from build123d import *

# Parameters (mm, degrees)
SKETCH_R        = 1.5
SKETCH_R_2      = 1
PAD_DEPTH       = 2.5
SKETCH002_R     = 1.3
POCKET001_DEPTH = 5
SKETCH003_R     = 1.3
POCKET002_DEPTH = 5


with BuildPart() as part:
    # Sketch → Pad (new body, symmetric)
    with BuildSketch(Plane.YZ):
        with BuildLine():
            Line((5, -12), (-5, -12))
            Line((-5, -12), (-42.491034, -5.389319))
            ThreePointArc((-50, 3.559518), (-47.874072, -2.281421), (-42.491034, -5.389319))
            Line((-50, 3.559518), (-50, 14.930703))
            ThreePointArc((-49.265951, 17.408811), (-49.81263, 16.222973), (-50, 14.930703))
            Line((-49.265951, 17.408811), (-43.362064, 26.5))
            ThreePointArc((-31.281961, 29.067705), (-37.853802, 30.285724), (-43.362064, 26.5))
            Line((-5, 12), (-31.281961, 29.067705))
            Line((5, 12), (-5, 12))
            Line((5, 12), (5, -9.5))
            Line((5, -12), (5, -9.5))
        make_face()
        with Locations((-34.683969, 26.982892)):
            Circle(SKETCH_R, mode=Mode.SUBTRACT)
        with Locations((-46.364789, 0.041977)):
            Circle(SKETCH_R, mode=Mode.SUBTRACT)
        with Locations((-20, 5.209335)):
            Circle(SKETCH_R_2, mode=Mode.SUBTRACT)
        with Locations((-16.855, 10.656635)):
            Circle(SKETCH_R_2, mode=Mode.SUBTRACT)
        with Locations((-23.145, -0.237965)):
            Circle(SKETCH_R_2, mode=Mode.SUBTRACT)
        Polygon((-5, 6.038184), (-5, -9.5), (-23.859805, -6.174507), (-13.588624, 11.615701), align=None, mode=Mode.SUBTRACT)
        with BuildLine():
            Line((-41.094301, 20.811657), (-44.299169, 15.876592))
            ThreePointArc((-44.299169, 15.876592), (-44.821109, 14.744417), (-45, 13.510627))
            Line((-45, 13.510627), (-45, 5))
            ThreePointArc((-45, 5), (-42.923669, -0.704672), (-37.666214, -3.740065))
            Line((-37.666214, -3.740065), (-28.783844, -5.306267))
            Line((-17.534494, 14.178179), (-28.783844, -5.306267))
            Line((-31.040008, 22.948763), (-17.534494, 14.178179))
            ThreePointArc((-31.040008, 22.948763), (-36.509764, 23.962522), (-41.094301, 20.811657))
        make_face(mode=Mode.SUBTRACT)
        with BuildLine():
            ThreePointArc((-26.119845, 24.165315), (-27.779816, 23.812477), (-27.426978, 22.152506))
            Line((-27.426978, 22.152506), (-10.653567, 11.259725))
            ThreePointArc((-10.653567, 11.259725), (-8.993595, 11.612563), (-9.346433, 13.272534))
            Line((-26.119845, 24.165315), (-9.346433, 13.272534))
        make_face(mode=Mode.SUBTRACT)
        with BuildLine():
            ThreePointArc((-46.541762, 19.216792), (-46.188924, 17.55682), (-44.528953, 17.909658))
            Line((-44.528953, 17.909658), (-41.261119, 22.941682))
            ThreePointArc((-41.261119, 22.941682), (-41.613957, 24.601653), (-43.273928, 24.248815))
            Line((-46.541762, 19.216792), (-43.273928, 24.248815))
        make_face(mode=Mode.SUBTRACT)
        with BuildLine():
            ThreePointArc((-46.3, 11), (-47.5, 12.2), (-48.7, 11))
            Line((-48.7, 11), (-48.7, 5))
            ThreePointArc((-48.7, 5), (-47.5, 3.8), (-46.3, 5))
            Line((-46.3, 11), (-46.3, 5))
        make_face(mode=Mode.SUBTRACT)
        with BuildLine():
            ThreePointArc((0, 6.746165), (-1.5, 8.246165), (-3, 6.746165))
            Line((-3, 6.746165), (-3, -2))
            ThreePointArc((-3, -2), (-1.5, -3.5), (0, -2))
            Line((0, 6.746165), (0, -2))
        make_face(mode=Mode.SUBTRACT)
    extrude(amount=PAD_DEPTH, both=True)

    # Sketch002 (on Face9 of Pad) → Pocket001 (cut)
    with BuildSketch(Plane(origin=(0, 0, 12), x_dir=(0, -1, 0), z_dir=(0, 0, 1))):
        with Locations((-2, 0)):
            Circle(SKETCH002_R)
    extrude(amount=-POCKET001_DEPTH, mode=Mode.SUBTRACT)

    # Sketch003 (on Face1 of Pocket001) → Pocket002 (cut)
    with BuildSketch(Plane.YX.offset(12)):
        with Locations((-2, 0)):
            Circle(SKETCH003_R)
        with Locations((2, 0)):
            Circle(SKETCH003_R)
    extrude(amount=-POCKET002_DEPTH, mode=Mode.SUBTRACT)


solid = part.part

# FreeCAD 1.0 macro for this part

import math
import FreeCAD as App
import Part
import Sketcher
from FreeCAD import Vector
Q = App.Units.Quantity


def add_polygon(sketch, points):
    """Adds a closed chain of lines whose ends are joined by coincident constraints."""
    first, n = sketch.GeometryCount, len(points)
    for a, b in zip(points, points[1:] + points[:1]):
        sketch.addGeometry(Part.LineSegment(App.Vector(*a, 0), App.Vector(*b, 0)), False)
    for i in range(n):
        sketch.addConstraint(Sketcher.Constraint("Coincident", first + i, 2, first + (i + 1) % n, 1))

doc = App.newDocument("Part")
body = doc.addObject("PartDesign::Body", "Body")

sketch1 = body.newObject("Sketcher::SketchObject", "Sketch")
sketch1.AttachmentSupport = (doc.getObject("YZ_Plane"), [""])
sketch1.MapMode = "FlatFace"
sketch1.addGeometry(Part.LineSegment(Vector(-5, -12, 0), Vector(5, -12, 0)), False)
sketch1.addGeometry(Part.LineSegment(Vector(5, -12, 0), Vector(5, 12, 0)), False)
sketch1.addGeometry(Part.LineSegment(Vector(5, 12, 0), Vector(-5, 12, 0)), False)
sketch1.addGeometry(Part.LineSegment(Vector(-5, 12, 0), Vector(-31.281961, 29.067705, 0)), False)
sketch1.addGeometry(Part.ArcOfCircle(Part.Circle(Vector(-36.03816, 21.743802, 0), Vector(0, 0, 1), 8.732754), math.radians(56.999994), math.radians(147.000004)), False)
sketch1.addGeometry(Part.LineSegment(Vector(-43.362064, 26.5, 0), Vector(-49.265951, 17.408811, 0)), False)
sketch1.addGeometry(Part.ArcOfCircle(Part.Circle(Vector(-45.450004, 14.930704, 0), Vector(0, 0, 1), 4.549996), math.radians(146.999983), math.radians(180.000019)), False)
sketch1.addGeometry(Part.LineSegment(Vector(-50, 14.930703, 0), Vector(-50, 3.559518, 0)), False)
sketch1.addGeometry(Part.ArcOfCircle(Part.Circle(Vector(-40.913113, 3.559518, 0), Vector(0, 0, 1), 9.086887), math.radians(179.999998), math.radians(260.000004)), False)
sketch1.addGeometry(Part.LineSegment(Vector(-42.491034, -5.389319, 0), Vector(-5, -12, 0)), False)
sketch1.addGeometry(Part.Circle(Vector(-23.145, -0.237965, 0), Vector(0, 0, 1), 1), False)
sketch1.addGeometry(Part.LineSegment(Vector(0, 6.746165, 0), Vector(0, -2, 0)), False)
sketch1.addGeometry(Part.ArcOfCircle(Part.Circle(Vector(-1.5, -2, 0), Vector(0, 0, 1), 1.5), math.radians(180), math.radians(360)), False)
sketch1.addGeometry(Part.LineSegment(Vector(-3, -2, 0), Vector(-3, 6.746165, 0)), False)
sketch1.addGeometry(Part.ArcOfCircle(Part.Circle(Vector(-1.5, 6.746165, 0), Vector(0, 0, 1), 1.5), math.radians(0), math.radians(180)), False)
add_polygon(sketch1, [(-5, 6.038184), (-5, -9.5), (-23.859805, -6.174507), (-13.588624, 11.615701)])
sketch1.addGeometry(Part.Circle(Vector(-20, 5.209335, 0), Vector(0, 0, 1), 1), False)
sketch1.addGeometry(Part.ArcOfCircle(Part.Circle(Vector(-34.998601, 16.853063, 0), Vector(0, 0, 1), 7.268289), math.radians(57.000004), math.radians(146.999997)), False)
sketch1.addGeometry(Part.LineSegment(Vector(-31.040008, 22.948763, 0), Vector(-17.534494, 14.178179, 0)), False)
sketch1.addGeometry(Part.LineSegment(Vector(-17.534494, 14.178179, 0), Vector(-28.783844, -5.306267, 0)), False)
sketch1.addGeometry(Part.LineSegment(Vector(-28.783844, -5.306267, 0), Vector(-37.666214, -3.740065, 0)), False)
sketch1.addGeometry(Part.ArcOfCircle(Part.Circle(Vector(-36.125105, 5.000001, 0), Vector(0, 0, 1), 8.874895), math.radians(-179.999996), math.radians(-99.999999)), False)
sketch1.addGeometry(Part.LineSegment(Vector(-45, 5, 0), Vector(-45, 13.510627, 0)), False)
sketch1.addGeometry(Part.ArcOfCircle(Part.Circle(Vector(-40.655905, 13.510627, 0), Vector(0, 0, 1), 4.344095), math.radians(146.999986), math.radians(180.000004)), False)
sketch1.addGeometry(Part.LineSegment(Vector(-44.299169, 15.876592, 0), Vector(-41.094301, 20.811657, 0)), False)
sketch1.addGeometry(Part.Circle(Vector(-46.364789, 0.041977, 0), Vector(0, 0, 1), 1.5), False)
sketch1.addGeometry(Part.LineSegment(Vector(-46.3, 11, 0), Vector(-46.3, 5, 0)), False)
sketch1.addGeometry(Part.ArcOfCircle(Part.Circle(Vector(-47.5, 5, 0), Vector(0, 0, 1), 1.2), math.radians(180), math.radians(360)), False)
sketch1.addGeometry(Part.LineSegment(Vector(-48.7, 5, 0), Vector(-48.7, 11, 0)), False)
sketch1.addGeometry(Part.ArcOfCircle(Part.Circle(Vector(-47.5, 11, 0), Vector(0, 0, 1), 1.2), math.radians(0), math.radians(180)), False)
sketch1.addGeometry(Part.Circle(Vector(-16.855, 10.656635, 0), Vector(0, 0, 1), 1), False)
sketch1.addGeometry(Part.LineSegment(Vector(-26.119845, 24.165315, 0), Vector(-9.346433, 13.272534, 0)), False)
sketch1.addGeometry(Part.ArcOfCircle(Part.Circle(Vector(-10, 12.266129, 0), Vector(0, 0, 1), 1.2), math.radians(-123.000018), math.radians(56.999996)), False)
sketch1.addGeometry(Part.LineSegment(Vector(-10.653567, 11.259725, 0), Vector(-27.426978, 22.152506, 0)), False)
sketch1.addGeometry(Part.ArcOfCircle(Part.Circle(Vector(-26.773412, 23.158911, 0), Vector(0, 0, 1), 1.2), math.radians(57.000009), math.radians(237.000009)), False)
sketch1.addGeometry(Part.Circle(Vector(-34.683969, 26.982892, 0), Vector(0, 0, 1), 1.5), False)
sketch1.addGeometry(Part.LineSegment(Vector(-46.541762, 19.216792, 0), Vector(-43.273928, 24.248815, 0)), False)
sketch1.addGeometry(Part.ArcOfCircle(Part.Circle(Vector(-42.267524, 23.595249, 0), Vector(0, 0, 1), 1.2), math.radians(-32.999991), math.radians(147.000009)), False)
sketch1.addGeometry(Part.LineSegment(Vector(-41.261119, 22.941682, 0), Vector(-44.528953, 17.909658, 0)), False)
sketch1.addGeometry(Part.ArcOfCircle(Part.Circle(Vector(-45.535358, 18.563225, 0), Vector(0, 0, 1), 1.2), math.radians(146.999982), math.radians(326.999996)), False)
sketch1.addConstraint(Sketcher.Constraint("Coincident", 0, 2, 1, 1))
sketch1.addConstraint(Sketcher.Constraint("Coincident", 1, 2, 2, 1))
sketch1.addConstraint(Sketcher.Constraint("Coincident", 2, 2, 3, 1))
sketch1.addConstraint(Sketcher.Constraint("Tangent", 3, 2, 4, 1))
sketch1.addConstraint(Sketcher.Constraint("Tangent", 4, 2, 5, 1))
sketch1.addConstraint(Sketcher.Constraint("Tangent", 5, 2, 6, 1))
sketch1.addConstraint(Sketcher.Constraint("Tangent", 6, 2, 7, 1))
sketch1.addConstraint(Sketcher.Constraint("Tangent", 7, 2, 8, 1))
sketch1.addConstraint(Sketcher.Constraint("Tangent", 8, 2, 9, 1))
sketch1.addConstraint(Sketcher.Constraint("Coincident", 9, 2, 0, 1))
sketch1.addConstraint(Sketcher.Constraint("Tangent", 11, 2, 12, 2))
sketch1.addConstraint(Sketcher.Constraint("Tangent", 12, 1, 13, 1))
sketch1.addConstraint(Sketcher.Constraint("Tangent", 13, 2, 14, 2))
sketch1.addConstraint(Sketcher.Constraint("Tangent", 14, 1, 11, 1))
sketch1.addConstraint(Sketcher.Constraint("Tangent", 20, 1, 21, 1))
sketch1.addConstraint(Sketcher.Constraint("Coincident", 21, 2, 22, 1))
sketch1.addConstraint(Sketcher.Constraint("Coincident", 22, 2, 23, 1))
sketch1.addConstraint(Sketcher.Constraint("Tangent", 23, 2, 24, 2))
sketch1.addConstraint(Sketcher.Constraint("Tangent", 24, 1, 25, 1))
sketch1.addConstraint(Sketcher.Constraint("Tangent", 25, 2, 26, 2))
sketch1.addConstraint(Sketcher.Constraint("Tangent", 26, 1, 27, 1))
sketch1.addConstraint(Sketcher.Constraint("Tangent", 27, 2, 20, 2))
sketch1.addConstraint(Sketcher.Constraint("Tangent", 29, 2, 30, 2))
sketch1.addConstraint(Sketcher.Constraint("Tangent", 30, 1, 31, 1))
sketch1.addConstraint(Sketcher.Constraint("Tangent", 31, 2, 32, 2))
sketch1.addConstraint(Sketcher.Constraint("Tangent", 32, 1, 29, 1))
sketch1.addConstraint(Sketcher.Constraint("Tangent", 34, 2, 35, 2))
sketch1.addConstraint(Sketcher.Constraint("Tangent", 35, 1, 36, 1))
sketch1.addConstraint(Sketcher.Constraint("Tangent", 36, 2, 37, 2))
sketch1.addConstraint(Sketcher.Constraint("Tangent", 37, 1, 34, 1))
sketch1.addConstraint(Sketcher.Constraint("Tangent", 39, 2, 40, 2))
sketch1.addConstraint(Sketcher.Constraint("Tangent", 40, 1, 41, 1))
sketch1.addConstraint(Sketcher.Constraint("Tangent", 41, 2, 42, 2))
sketch1.addConstraint(Sketcher.Constraint("Tangent", 42, 1, 39, 1))
sketch1.addConstraint(Sketcher.Constraint("Horizontal", 0))
sketch1.addConstraint(Sketcher.Constraint("Vertical", 1))
sketch1.addConstraint(Sketcher.Constraint("Horizontal", 2))
sketch1.addConstraint(Sketcher.Constraint("Vertical", 7))
sketch1.addConstraint(Sketcher.Constraint("Vertical", 11))
sketch1.addConstraint(Sketcher.Constraint("Vertical", 13))
sketch1.addConstraint(Sketcher.Constraint("Vertical", 15))
sketch1.addConstraint(Sketcher.Constraint("Vertical", 25))
sketch1.addConstraint(Sketcher.Constraint("Vertical", 29))
sketch1.addConstraint(Sketcher.Constraint("Vertical", 31))
sketch1.addConstraint(Sketcher.Constraint("Equal", 10, 19))
sketch1.addConstraint(Sketcher.Constraint("Equal", 14, 28))
sketch1.addConstraint(Sketcher.Constraint("Equal", 19, 33))
sketch1.addConstraint(Sketcher.Constraint("Equal", 32, 35))
sketch1.addConstraint(Sketcher.Constraint("Equal", 35, 37))
sketch1.addConstraint(Sketcher.Constraint("Equal", 28, 38))
sketch1.addConstraint(Sketcher.Constraint("Equal", 37, 40))
sketch1.addConstraint(Sketcher.Constraint("Equal", 40, 42))
sketch1.addConstraint(Sketcher.Constraint("Symmetric", 0, 2, 2, 2, -1, 1))
sketch1.addConstraint(Sketcher.Constraint("PointOnObject", 11, 2, -2))
sketch1.addConstraint(Sketcher.Constraint("Perpendicular", 3, 5))
sketch1.addConstraint(Sketcher.Constraint("Parallel", 9, 16))
sketch1.addConstraint(Sketcher.Constraint("Perpendicular", 5, 18))
sketch1.addConstraint(Sketcher.Constraint("Parallel", 18, 21))
sketch1.addConstraint(Sketcher.Constraint("Parallel", 17, 22))
sketch1.addConstraint(Sketcher.Constraint("Parallel", 16, 23))
sketch1.addConstraint(Sketcher.Constraint("Perpendicular", 21, 27))
sketch1.addConstraint(Sketcher.Constraint("Perpendicular", 27, 34))
sketch1.addConstraint(Sketcher.Constraint("Perpendicular", 36, 39))
sketch1.addConstraint(Sketcher.Constraint("Horizontal", 24, 3, 30, 3))
sketch1.addConstraint(Sketcher.Constraint("Vertical", 2, 2, 9, 2))
sketch1.addConstraint(Sketcher.Constraint("Vertical", 9, 2, 15, 2))
sketch1.addConstraint(Sketcher.Constraint("Diameter", 10, Q("2 mm")))
sketch1.addConstraint(Sketcher.Constraint("Diameter", 28, Q("3 mm")))
sketch1.addConstraint(Sketcher.Constraint("Radius", 30, Q("1.2 mm")))
sketch1.addConstraint(Sketcher.Constraint("DistanceX", 0, 1, 0, 2, Q("10 mm")))
sketch1.addConstraint(Sketcher.Constraint("DistanceY", 1, 1, 1, 2, Q("24 mm")))
sketch1.addConstraint(Sketcher.Constraint("DistanceY", 29, 2, 29, 1, Q("6 mm")))
sketch1.addConstraint(Sketcher.Constraint("Angle", 3, Q("147 deg")))
sketch1.addConstraint(Sketcher.Constraint("Angle", 9, Q("-10 deg")))
sketch1.addConstraint(Sketcher.Constraint("Angle", 17, Q("60.000001 deg")))
sketch1.addConstraint(Sketcher.Constraint("Distance", 34, Q("20.000001 mm")))
sketch1.addConstraint(Sketcher.Constraint("Distance", 39, Q("6 mm")))
sketch1.addConstraint(Sketcher.Constraint("DistanceY", 12, 3, -1, 1, Q("2 mm")))
sketch1.addConstraint(Sketcher.Constraint("DistanceX", 19, 3, -1, 1, Q("20 mm")))
sketch1.addConstraint(Sketcher.Constraint("DistanceY", -1, 1, 24, 3, Q("5.000001 mm")))
sketch1.addConstraint(Sketcher.Constraint("DistanceX", 35, 3, -1, 1, Q("10 mm")))
sketch1.addConstraint(Sketcher.Constraint("DistanceX", 6, 2, -1, 1, Q("50 mm")))
sketch1.addConstraint(Sketcher.Constraint("DistanceX", 24, 1, -1, 1, Q("45 mm")))
sketch1.addConstraint(Sketcher.Constraint("DistanceX", 30, 3, -1, 1, Q("47.5 mm")))
sketch1.addConstraint(Sketcher.Constraint("DistanceY", -1, 1, 4, 2, Q("26.5 mm")))
sketch1.addConstraint(Sketcher.Constraint("DistanceY", 15, 2, -1, 1, Q("9.5 mm")))
sketch1.addConstraint(Sketcher.Constraint("Distance", 5, Q("10.84 mm")))
sketch1.addConstraint(Sketcher.Constraint("Radius", 20, Q("7.268289 mm")))
sketch1.addConstraint(Sketcher.Constraint("DistanceX", 10, 3, 33, 3, Q("6.29 mm")))
sketch1.addConstraint(Sketcher.Constraint("DistanceX", 10, 3, -1, 1, Q("23.145 mm")))
sketch1.addConstraint(Sketcher.Constraint("Radius", 4, Q("8.732754 mm")))
sketch1.addConstraint(Sketcher.Constraint("Radius", 8, Q("9.086887 mm")))
sketch1.addConstraint(Sketcher.Constraint("Radius", 24, Q("8.874895 mm")))
sketch1.addConstraint(Sketcher.Constraint("Radius", 26, Q("4.344095 mm")))
sketch1.addConstraint(Sketcher.Constraint("DistanceY", 41, 2, 27, 2, Q("2.901999 mm")))
sketch1.addConstraint(Sketcher.Constraint("Distance", 22, Q("22.4987 mm")))
sketch1.addConstraint(Sketcher.Constraint("DistanceX", 20, 3, -1, 1, Q("34.998601 mm")))
sketch1.addConstraint(Sketcher.Constraint("DistanceY", -1, 1, 17, 2, Q("11.615701 mm")))
sketch1.addConstraint(Sketcher.Constraint("DistanceY", 10, 3, 19, 3, Q("5.4473 mm")))
sketch1.addConstraint(Sketcher.Constraint("DistanceY", 19, 3, 33, 3, Q("5.4473 mm")))
sketch1.addConstraint(Sketcher.Constraint("DistanceX", 24, 3, 16, 2, Q("12.2653 mm")))
sketch1.addConstraint(Sketcher.Constraint("DistanceY", 33, 3, 34, 2, Q("2.615899 mm")))
sketch1.addConstraint(Sketcher.Constraint("DistanceY", 36, 2, 3, 2, Q("6.915199 mm")))
sketch1.addConstraint(Sketcher.Constraint("Distance", 21, Q("16.10348 mm")))
sketch1.addConstraint(Sketcher.Constraint("DistanceY", 11, 2, 11, 1, Q("8.746165 mm")))
sketch1.addConstraint(Sketcher.Constraint("DistanceX", 28, 3, -1, 1, Q("46.364789 mm")))
sketch1.addConstraint(Sketcher.Constraint("DistanceX", 38, 3, -1, 1, Q("34.683969 mm")))
sketch1.addConstraint(Sketcher.Constraint("DistanceY", -1, 1, 38, 3, Q("26.982892 mm")))
sketch1.addConstraint(Sketcher.Constraint("DistanceX", 40, 1, -1, 1, Q("41.261119 mm")))
sketch1.addConstraint(Sketcher.Constraint("DistanceY", 28, 3, 8, 3, Q("3.517541 mm")))
pad1 = body.newObject("PartDesign::Pad", "Pad")
pad1.Profile = sketch1
pad1.Length = 5
pad1.Midplane = True

sketch2 = body.newObject("Sketcher::SketchObject", "Sketch001")
sketch2.AttachmentSupport = (doc.getObject("XY_Plane"), [""])
sketch2.MapMode = "FlatFace"
sketch2.AttachmentOffset = App.Placement(Vector(0, 0, 12), App.Rotation())
sketch2.addGeometry(Part.Circle(Vector(0, 2, 0), Vector(0, 0, 1), 1.3), False)
sketch2.addConstraint(Sketcher.Constraint("PointOnObject", 0, 3, -2))
sketch2.addConstraint(Sketcher.Constraint("Diameter", 0, Q("2.6 mm")))
sketch2.addConstraint(Sketcher.Constraint("DistanceY", -1, 1, 0, 3, Q("2 mm")))
pocket1 = body.newObject("PartDesign::Pocket", "Pocket")
pocket1.Profile = sketch2
pocket1.Length = 5

sketch3 = body.newObject("Sketcher::SketchObject", "Sketch002")
sketch3.AttachmentSupport = (doc.getObject("XY_Plane"), [""])
sketch3.MapMode = "FlatFace"
sketch3.AttachmentOffset = App.Placement(Vector(0, 0, -12), App.Rotation())
sketch3.addGeometry(Part.Circle(Vector(0, -2, 0), Vector(0, 0, 1), 1.3), False)
sketch3.addGeometry(Part.Circle(Vector(0, 2, 0), Vector(0, 0, 1), 1.3), False)
sketch3.addConstraint(Sketcher.Constraint("Equal", 0, 1))
sketch3.addConstraint(Sketcher.Constraint("Symmetric", 0, 3, 1, 3, -1, 1))
sketch3.addConstraint(Sketcher.Constraint("PointOnObject", 0, 3, -2))
sketch3.addConstraint(Sketcher.Constraint("Diameter", 0, Q("2.6 mm")))
sketch3.addConstraint(Sketcher.Constraint("DistanceY", 0, 3, -1, 1, Q("2 mm")))
pocket2 = body.newObject("PartDesign::Pocket", "Pocket001")
pocket2.Profile = sketch3
pocket2.Length = 5
pocket2.Reversed = True

doc.recompute()
